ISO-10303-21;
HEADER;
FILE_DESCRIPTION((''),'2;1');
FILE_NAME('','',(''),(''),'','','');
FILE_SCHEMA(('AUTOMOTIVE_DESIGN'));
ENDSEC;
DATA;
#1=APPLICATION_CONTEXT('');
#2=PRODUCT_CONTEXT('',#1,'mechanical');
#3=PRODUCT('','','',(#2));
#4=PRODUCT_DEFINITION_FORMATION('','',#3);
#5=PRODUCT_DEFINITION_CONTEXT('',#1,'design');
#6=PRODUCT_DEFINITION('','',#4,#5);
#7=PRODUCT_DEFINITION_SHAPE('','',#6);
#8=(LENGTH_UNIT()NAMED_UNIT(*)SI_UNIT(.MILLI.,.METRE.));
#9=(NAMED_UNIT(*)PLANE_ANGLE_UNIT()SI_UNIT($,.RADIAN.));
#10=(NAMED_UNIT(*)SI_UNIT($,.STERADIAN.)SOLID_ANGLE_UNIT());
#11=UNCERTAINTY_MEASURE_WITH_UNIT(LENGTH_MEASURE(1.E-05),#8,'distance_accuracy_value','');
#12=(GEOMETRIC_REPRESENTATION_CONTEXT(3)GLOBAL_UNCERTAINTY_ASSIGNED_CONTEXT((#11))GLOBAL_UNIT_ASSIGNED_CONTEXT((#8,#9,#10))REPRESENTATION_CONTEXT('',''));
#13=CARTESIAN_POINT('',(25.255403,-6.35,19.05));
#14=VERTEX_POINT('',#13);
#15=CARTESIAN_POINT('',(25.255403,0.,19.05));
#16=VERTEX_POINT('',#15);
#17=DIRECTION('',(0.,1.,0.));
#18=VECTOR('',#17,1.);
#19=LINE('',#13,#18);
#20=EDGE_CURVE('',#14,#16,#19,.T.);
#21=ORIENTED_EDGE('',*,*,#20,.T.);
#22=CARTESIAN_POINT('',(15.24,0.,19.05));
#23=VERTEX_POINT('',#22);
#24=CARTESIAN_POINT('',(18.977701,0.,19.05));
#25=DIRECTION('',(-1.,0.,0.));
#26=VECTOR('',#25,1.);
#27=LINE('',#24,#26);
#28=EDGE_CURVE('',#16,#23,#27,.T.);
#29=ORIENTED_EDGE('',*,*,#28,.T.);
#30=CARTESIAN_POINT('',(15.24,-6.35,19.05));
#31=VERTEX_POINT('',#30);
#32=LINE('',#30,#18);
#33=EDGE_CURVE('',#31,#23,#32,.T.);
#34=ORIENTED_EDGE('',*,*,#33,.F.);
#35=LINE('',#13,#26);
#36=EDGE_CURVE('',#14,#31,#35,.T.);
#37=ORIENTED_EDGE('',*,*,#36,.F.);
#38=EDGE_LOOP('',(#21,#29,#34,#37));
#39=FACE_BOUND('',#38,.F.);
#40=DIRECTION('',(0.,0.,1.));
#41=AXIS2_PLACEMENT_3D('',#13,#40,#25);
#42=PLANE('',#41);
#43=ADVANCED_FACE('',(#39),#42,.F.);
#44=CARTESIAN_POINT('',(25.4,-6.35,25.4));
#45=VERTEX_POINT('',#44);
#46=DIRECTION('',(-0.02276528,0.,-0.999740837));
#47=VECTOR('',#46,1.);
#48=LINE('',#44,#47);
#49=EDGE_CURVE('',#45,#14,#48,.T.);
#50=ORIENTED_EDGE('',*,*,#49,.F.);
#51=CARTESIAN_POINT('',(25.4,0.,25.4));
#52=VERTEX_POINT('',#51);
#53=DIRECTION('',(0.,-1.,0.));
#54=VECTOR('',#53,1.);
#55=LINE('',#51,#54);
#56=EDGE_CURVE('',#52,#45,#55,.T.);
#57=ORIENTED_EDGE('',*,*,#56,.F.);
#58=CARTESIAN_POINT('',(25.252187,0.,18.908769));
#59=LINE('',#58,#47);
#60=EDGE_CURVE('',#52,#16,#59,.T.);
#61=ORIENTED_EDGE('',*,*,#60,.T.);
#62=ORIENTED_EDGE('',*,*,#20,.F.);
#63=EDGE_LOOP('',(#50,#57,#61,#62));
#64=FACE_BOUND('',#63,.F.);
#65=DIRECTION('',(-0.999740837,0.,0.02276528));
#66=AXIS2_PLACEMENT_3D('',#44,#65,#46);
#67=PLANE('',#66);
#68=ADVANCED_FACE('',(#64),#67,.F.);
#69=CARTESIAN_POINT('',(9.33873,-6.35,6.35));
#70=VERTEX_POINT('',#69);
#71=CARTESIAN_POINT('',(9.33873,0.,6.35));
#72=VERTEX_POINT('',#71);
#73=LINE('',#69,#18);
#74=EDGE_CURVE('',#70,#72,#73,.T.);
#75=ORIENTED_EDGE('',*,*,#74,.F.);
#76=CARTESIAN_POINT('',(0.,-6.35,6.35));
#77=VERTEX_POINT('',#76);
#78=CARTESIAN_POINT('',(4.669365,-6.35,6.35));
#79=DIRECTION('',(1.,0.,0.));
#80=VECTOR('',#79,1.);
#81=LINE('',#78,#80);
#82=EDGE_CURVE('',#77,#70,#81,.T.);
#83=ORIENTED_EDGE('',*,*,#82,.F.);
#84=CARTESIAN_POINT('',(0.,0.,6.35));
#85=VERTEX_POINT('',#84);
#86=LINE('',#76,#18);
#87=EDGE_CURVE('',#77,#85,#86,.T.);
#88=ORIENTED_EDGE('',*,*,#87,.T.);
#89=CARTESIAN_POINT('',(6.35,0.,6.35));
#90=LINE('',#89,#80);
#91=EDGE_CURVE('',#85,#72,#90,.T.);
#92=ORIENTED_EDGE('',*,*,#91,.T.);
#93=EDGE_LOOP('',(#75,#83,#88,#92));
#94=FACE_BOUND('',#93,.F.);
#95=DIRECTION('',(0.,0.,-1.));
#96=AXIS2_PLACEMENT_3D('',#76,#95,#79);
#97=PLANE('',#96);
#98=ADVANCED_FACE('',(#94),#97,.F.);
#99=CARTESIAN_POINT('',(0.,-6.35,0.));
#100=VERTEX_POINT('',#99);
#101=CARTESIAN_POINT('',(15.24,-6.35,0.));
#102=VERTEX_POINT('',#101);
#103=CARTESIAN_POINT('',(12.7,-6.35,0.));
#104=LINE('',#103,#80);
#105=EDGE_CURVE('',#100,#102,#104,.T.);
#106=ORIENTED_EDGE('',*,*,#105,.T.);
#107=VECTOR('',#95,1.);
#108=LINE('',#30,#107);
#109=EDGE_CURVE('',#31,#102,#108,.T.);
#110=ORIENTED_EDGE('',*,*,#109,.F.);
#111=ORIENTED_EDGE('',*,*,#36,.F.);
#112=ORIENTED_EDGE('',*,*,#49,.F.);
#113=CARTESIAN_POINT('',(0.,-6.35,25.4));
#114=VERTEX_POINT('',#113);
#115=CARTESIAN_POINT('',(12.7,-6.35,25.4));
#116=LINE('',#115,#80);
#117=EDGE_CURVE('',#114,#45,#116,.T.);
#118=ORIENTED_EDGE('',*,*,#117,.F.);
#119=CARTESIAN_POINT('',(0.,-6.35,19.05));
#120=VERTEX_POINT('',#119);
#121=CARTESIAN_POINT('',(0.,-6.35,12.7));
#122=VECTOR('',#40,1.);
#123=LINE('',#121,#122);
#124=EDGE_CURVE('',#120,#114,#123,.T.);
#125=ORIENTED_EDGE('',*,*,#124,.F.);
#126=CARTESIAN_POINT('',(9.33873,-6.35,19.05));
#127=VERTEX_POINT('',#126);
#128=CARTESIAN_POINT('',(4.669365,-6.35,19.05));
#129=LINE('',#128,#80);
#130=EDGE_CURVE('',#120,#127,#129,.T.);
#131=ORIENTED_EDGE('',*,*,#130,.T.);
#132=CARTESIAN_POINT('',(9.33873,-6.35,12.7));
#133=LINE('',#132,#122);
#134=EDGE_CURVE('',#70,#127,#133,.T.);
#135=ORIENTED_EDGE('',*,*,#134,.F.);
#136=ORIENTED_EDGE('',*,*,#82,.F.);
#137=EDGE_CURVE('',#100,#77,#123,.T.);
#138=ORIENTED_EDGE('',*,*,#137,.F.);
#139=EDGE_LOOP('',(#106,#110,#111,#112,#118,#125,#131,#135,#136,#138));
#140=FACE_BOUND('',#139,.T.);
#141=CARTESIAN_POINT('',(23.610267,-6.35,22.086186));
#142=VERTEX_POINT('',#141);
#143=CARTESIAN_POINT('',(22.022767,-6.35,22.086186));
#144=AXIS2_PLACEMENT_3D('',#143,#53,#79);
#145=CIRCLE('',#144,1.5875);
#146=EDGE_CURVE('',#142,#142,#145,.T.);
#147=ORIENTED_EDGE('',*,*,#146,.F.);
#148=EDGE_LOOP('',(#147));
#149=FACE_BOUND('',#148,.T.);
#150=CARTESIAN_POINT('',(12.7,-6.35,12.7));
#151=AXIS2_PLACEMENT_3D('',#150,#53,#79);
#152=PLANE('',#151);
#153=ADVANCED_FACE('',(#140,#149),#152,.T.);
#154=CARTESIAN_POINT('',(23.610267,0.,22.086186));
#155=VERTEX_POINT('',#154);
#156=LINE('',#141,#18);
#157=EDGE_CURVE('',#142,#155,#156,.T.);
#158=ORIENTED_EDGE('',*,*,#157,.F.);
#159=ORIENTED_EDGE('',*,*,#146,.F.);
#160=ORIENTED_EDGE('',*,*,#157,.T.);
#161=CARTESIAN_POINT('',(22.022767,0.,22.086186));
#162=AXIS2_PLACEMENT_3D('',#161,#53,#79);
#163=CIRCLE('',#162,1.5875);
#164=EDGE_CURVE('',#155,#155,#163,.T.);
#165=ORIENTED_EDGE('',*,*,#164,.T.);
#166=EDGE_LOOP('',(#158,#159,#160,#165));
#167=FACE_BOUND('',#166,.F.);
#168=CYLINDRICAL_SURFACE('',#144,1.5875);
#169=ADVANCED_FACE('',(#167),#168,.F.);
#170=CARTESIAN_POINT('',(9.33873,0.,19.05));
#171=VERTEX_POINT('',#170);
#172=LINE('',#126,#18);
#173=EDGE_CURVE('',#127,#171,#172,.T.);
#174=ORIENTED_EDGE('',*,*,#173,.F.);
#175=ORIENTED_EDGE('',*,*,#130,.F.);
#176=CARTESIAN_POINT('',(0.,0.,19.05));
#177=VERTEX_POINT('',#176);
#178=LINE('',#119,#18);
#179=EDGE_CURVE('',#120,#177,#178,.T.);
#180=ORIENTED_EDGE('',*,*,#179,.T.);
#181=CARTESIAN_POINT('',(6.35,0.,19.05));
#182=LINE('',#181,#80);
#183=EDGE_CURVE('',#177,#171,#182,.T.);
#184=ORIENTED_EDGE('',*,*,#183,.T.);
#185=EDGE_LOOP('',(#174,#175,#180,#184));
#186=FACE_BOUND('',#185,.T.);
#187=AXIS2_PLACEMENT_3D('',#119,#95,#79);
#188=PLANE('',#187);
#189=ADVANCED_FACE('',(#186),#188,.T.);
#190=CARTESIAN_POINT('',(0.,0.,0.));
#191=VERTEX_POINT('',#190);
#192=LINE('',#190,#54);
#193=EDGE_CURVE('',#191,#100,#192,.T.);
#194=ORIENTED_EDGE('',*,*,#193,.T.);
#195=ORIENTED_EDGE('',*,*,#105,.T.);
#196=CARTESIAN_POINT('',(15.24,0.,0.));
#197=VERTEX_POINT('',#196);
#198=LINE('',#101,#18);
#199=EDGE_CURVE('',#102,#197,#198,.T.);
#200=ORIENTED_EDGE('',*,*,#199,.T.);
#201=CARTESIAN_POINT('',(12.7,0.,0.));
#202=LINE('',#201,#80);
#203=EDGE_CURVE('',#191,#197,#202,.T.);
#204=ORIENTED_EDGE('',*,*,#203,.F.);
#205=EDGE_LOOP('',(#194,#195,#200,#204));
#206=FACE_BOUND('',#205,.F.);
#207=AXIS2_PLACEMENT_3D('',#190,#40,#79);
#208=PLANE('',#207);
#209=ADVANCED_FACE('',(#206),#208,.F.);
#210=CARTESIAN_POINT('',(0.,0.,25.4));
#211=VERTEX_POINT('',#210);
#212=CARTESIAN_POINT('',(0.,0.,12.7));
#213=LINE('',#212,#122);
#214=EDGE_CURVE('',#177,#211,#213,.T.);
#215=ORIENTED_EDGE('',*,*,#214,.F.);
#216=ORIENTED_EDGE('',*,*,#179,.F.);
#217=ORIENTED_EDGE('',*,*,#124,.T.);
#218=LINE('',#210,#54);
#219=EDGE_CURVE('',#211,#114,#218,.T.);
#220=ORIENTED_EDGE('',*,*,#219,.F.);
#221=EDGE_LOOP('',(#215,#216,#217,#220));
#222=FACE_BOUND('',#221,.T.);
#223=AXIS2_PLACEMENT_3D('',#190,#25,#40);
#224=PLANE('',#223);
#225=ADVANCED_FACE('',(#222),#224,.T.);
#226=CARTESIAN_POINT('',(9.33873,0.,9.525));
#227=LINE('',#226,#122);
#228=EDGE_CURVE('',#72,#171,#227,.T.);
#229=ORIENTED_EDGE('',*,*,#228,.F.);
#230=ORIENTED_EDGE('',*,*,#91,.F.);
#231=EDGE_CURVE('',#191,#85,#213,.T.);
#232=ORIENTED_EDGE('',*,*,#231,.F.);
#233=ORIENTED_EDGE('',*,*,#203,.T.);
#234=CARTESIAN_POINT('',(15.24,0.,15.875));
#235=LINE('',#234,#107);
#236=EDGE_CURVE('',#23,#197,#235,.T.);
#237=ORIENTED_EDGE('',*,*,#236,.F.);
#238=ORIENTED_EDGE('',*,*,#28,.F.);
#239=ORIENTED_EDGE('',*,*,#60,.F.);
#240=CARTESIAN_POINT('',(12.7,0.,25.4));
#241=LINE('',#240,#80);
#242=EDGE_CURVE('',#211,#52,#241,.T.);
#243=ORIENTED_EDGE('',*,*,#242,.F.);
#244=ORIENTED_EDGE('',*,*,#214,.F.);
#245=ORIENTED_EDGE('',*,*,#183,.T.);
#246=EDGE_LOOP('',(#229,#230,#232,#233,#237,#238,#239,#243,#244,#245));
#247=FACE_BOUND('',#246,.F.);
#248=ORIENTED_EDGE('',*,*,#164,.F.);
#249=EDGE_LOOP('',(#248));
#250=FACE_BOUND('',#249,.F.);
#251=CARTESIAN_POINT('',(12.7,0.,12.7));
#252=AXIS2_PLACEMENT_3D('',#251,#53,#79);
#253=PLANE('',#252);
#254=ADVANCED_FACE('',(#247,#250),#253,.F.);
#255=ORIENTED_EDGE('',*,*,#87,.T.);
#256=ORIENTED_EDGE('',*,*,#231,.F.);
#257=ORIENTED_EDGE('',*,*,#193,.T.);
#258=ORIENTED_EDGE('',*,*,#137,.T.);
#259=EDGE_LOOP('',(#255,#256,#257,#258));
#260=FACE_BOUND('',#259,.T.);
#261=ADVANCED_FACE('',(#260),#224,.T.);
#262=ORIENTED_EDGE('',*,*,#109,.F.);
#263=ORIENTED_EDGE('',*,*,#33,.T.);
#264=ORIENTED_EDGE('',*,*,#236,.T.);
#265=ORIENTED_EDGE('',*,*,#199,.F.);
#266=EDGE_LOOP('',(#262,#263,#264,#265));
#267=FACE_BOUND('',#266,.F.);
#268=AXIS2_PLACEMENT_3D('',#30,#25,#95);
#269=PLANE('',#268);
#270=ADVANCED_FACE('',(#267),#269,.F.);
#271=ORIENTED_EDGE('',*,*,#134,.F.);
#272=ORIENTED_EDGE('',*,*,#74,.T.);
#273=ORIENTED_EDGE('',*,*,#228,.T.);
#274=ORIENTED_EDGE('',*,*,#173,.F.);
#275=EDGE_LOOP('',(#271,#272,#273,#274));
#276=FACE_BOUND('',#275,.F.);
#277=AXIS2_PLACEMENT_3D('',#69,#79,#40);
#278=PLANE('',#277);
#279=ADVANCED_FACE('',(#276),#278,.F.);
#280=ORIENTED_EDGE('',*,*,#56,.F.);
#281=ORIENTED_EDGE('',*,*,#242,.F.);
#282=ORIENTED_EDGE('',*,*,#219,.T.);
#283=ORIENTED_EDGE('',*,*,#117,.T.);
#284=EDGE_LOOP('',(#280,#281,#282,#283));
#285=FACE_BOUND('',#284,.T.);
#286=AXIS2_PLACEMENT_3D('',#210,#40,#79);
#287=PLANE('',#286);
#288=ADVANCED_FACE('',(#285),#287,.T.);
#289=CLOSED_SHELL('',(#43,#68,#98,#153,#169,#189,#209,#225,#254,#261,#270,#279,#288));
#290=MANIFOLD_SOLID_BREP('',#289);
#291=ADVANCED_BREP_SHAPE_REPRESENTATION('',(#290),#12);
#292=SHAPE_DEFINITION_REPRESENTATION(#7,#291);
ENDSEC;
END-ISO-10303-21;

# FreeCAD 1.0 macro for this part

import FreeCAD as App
import Part
import Sketcher
Q = App.Units.Quantity

doc = App.newDocument("Part")
params = doc.addObject("Spreadsheet::Sheet", "Params")
for row, (alias, value) in enumerate([
    ("sketch1_width", "1 in"),
    ("pad1_length", "0.25 in"),
    ("sketch2_height", "1 in"),
    ("sketch2_width", "0.4 in"),
    ("sketch2_height2", "0.5 in"),
    ("sketch2_height3", "0.75 in"),
    ("pocket1_length", "1 in"),
    ("sketch3_diameter", "0.125 in"),
    ("pocket2_length", "1 in"),
], start=1):
    params.set(f"A{row}", alias)
    params.set(f"B{row}", "=" + value)
    params.setAlias(f"B{row}", alias)

body = doc.addObject("PartDesign::Body", "Body")

# Sketch on XZ plane
sketch1 = body.newObject("Sketcher::SketchObject", "Sketch")
sketch1.AttachmentSupport = (doc.getObject("XZ_Plane"), [""])
sketch1.MapMode = "FlatFace"
sketch1.addGeometry([
    Part.LineSegment(App.Vector(0, 25, 0), App.Vector(0, 0, 0)),
    Part.LineSegment(App.Vector(0, 0, 0), App.Vector(25, 0, 0)),
    Part.LineSegment(App.Vector(25, 0, 0), App.Vector(25, 25, 0)),
    Part.LineSegment(App.Vector(25, 25, 0), App.Vector(0, 25, 0)),
], False)
sketch1.addConstraint([
    Sketcher.Constraint("Coincident", 0, 2, 1, 1),
    Sketcher.Constraint("Coincident", 1, 2, 2, 1),
    Sketcher.Constraint("Coincident", 2, 2, 3, 1),
    Sketcher.Constraint("Coincident", 3, 2, 0, 1),
    Sketcher.Constraint("Vertical", 0),
    Sketcher.Constraint("Horizontal", 1),
    Sketcher.Constraint("Vertical", 2),
    Sketcher.Constraint("Horizontal", 3),
    Sketcher.Constraint("Coincident", 0, 2, -1, 1),
    Sketcher.Constraint("Equal", 3, 0),
    Sketcher.Constraint("DistanceX", 1, 1, 1, 2, Q("1 in")),
])
sketch1.setExpression("Constraints[10]", "Params.sketch1_width")
pad1 = body.newObject("PartDesign::Pad", "Pad")
pad1.Profile = sketch1
pad1.setExpression("Length", "Params.pad1_length")

# Sketch on XZ plane
sketch2 = body.newObject("Sketcher::SketchObject", "Sketch001")
sketch2.AttachmentSupport = (doc.getObject("XZ_Plane"), [""])
sketch2.MapMode = "FlatFace"
sketch2.AttachmentOffset = App.Placement(App.Vector(0, 0, 0.25 * 25.4), App.Rotation())
sketch2.addGeometry([
    Part.LineSegment(App.Vector(0, 19, 0), App.Vector(0, 6, 0)),  # 0
    Part.LineSegment(App.Vector(0, 6, 0), App.Vector(9, 6, 0)),  # 1
    Part.LineSegment(App.Vector(9, 6, 0), App.Vector(9, 19, 0)),  # 2
    Part.LineSegment(App.Vector(9, 19, 0), App.Vector(0, 19, 0)),  # 3
    Part.LineSegment(App.Vector(25, 0, 0), App.Vector(25, 25, 0)),  # 4
    Part.LineSegment(App.Vector(25, 25, 0), App.Vector(25, 19, 0)),  # 5
    Part.LineSegment(App.Vector(25, 19, 0), App.Vector(15, 19, 0)),  # 6
    Part.LineSegment(App.Vector(15, 19, 0), App.Vector(15, 0, 0)),  # 7
    Part.LineSegment(App.Vector(15, 0, 0), App.Vector(25, 0, 0)),  # 8
], False)
sketch2.addConstraint([
    Sketcher.Constraint("Coincident", 0, 2, 1, 1),
    Sketcher.Constraint("Coincident", 1, 2, 2, 1),
    Sketcher.Constraint("Coincident", 2, 2, 3, 1),
    Sketcher.Constraint("Coincident", 3, 2, 0, 1),
    Sketcher.Constraint("Coincident", 4, 2, 5, 1),
    Sketcher.Constraint("Coincident", 5, 2, 6, 1),
    Sketcher.Constraint("Coincident", 6, 2, 7, 1),
    Sketcher.Constraint("Coincident", 7, 2, 8, 1),
    Sketcher.Constraint("Coincident", 8, 2, 4, 1),
    Sketcher.Constraint("Vertical", 0),
    Sketcher.Constraint("Horizontal", 1),
    Sketcher.Constraint("Vertical", 2),
    Sketcher.Constraint("Horizontal", 3),
    Sketcher.Constraint("Vertical", 4),
    Sketcher.Constraint("Horizontal", 6),
    Sketcher.Constraint("Vertical", 7),
    Sketcher.Constraint("Horizontal", 8),
    Sketcher.Constraint("PointOnObject", 0, 2, -2),
    Sketcher.Constraint("PointOnObject", 7, 2, -1),
    Sketcher.Constraint("Horizontal", 3, 2, 5, 2),
    Sketcher.Constraint("DistanceY", 4, 1, 4, 2, Q("1 in")),
    Sketcher.Constraint("DistanceX", 8, 1, 8, 2, Q("0.4 in")),
    Sketcher.Constraint("DistanceY", 0, 2, 0, 1, Q("0.5 in")),
    Sketcher.Constraint("DistanceX", -1, 1, 4, 2, Q("1 in")),
    Sketcher.Constraint("DistanceY", 7, 2, 7, 1, Q("0.75 in")),
    Sketcher.Constraint("DistanceX", 1, 1, 1, 2, 9.33873),
    Sketcher.Constraint("DistanceX", 6, 2, 6, 1, 10.015403),
])
sketch2.setExpression("Constraints[20]", "Params.sketch2_height")
sketch2.setExpression("Constraints[21]", "Params.sketch2_width")
sketch2.setExpression("Constraints[22]", "Params.sketch2_height2")
sketch2.setExpression("Constraints[24]", "Params.sketch2_height3")
pocket1 = body.newObject("PartDesign::Pocket", "Pocket")
pocket1.Profile = sketch2
pocket1.setExpression("Length", "Params.pocket1_length")

# Sketch on XZ plane
sketch3 = body.newObject("Sketcher::SketchObject", "Sketch002")
sketch3.AttachmentSupport = (doc.getObject("XZ_Plane"), [""])
sketch3.MapMode = "FlatFace"
sketch3.AttachmentOffset = App.Placement(App.Vector(0, 0, 0.25 * 25.4), App.Rotation())
sketch3.addGeometry(Part.Circle(App.Vector(22, 22.1, 0), App.Vector(0, 0, 1), 1.6), False)
sketch3.addConstraint([
    Sketcher.Constraint("Diameter", 0, Q("0.125 in")),
    Sketcher.Constraint("DistanceX", -1, 1, 0, 3, 22.022767),
    Sketcher.Constraint("DistanceY", -1, 1, 0, 3, 22.086186),
])
sketch3.setExpression("Constraints[0]", "Params.sketch3_diameter")
pocket2 = body.newObject("PartDesign::Pocket", "Pocket001")
pocket2.Profile = sketch3
pocket2.setExpression("Length", "Params.pocket2_length")

doc.recompute()
